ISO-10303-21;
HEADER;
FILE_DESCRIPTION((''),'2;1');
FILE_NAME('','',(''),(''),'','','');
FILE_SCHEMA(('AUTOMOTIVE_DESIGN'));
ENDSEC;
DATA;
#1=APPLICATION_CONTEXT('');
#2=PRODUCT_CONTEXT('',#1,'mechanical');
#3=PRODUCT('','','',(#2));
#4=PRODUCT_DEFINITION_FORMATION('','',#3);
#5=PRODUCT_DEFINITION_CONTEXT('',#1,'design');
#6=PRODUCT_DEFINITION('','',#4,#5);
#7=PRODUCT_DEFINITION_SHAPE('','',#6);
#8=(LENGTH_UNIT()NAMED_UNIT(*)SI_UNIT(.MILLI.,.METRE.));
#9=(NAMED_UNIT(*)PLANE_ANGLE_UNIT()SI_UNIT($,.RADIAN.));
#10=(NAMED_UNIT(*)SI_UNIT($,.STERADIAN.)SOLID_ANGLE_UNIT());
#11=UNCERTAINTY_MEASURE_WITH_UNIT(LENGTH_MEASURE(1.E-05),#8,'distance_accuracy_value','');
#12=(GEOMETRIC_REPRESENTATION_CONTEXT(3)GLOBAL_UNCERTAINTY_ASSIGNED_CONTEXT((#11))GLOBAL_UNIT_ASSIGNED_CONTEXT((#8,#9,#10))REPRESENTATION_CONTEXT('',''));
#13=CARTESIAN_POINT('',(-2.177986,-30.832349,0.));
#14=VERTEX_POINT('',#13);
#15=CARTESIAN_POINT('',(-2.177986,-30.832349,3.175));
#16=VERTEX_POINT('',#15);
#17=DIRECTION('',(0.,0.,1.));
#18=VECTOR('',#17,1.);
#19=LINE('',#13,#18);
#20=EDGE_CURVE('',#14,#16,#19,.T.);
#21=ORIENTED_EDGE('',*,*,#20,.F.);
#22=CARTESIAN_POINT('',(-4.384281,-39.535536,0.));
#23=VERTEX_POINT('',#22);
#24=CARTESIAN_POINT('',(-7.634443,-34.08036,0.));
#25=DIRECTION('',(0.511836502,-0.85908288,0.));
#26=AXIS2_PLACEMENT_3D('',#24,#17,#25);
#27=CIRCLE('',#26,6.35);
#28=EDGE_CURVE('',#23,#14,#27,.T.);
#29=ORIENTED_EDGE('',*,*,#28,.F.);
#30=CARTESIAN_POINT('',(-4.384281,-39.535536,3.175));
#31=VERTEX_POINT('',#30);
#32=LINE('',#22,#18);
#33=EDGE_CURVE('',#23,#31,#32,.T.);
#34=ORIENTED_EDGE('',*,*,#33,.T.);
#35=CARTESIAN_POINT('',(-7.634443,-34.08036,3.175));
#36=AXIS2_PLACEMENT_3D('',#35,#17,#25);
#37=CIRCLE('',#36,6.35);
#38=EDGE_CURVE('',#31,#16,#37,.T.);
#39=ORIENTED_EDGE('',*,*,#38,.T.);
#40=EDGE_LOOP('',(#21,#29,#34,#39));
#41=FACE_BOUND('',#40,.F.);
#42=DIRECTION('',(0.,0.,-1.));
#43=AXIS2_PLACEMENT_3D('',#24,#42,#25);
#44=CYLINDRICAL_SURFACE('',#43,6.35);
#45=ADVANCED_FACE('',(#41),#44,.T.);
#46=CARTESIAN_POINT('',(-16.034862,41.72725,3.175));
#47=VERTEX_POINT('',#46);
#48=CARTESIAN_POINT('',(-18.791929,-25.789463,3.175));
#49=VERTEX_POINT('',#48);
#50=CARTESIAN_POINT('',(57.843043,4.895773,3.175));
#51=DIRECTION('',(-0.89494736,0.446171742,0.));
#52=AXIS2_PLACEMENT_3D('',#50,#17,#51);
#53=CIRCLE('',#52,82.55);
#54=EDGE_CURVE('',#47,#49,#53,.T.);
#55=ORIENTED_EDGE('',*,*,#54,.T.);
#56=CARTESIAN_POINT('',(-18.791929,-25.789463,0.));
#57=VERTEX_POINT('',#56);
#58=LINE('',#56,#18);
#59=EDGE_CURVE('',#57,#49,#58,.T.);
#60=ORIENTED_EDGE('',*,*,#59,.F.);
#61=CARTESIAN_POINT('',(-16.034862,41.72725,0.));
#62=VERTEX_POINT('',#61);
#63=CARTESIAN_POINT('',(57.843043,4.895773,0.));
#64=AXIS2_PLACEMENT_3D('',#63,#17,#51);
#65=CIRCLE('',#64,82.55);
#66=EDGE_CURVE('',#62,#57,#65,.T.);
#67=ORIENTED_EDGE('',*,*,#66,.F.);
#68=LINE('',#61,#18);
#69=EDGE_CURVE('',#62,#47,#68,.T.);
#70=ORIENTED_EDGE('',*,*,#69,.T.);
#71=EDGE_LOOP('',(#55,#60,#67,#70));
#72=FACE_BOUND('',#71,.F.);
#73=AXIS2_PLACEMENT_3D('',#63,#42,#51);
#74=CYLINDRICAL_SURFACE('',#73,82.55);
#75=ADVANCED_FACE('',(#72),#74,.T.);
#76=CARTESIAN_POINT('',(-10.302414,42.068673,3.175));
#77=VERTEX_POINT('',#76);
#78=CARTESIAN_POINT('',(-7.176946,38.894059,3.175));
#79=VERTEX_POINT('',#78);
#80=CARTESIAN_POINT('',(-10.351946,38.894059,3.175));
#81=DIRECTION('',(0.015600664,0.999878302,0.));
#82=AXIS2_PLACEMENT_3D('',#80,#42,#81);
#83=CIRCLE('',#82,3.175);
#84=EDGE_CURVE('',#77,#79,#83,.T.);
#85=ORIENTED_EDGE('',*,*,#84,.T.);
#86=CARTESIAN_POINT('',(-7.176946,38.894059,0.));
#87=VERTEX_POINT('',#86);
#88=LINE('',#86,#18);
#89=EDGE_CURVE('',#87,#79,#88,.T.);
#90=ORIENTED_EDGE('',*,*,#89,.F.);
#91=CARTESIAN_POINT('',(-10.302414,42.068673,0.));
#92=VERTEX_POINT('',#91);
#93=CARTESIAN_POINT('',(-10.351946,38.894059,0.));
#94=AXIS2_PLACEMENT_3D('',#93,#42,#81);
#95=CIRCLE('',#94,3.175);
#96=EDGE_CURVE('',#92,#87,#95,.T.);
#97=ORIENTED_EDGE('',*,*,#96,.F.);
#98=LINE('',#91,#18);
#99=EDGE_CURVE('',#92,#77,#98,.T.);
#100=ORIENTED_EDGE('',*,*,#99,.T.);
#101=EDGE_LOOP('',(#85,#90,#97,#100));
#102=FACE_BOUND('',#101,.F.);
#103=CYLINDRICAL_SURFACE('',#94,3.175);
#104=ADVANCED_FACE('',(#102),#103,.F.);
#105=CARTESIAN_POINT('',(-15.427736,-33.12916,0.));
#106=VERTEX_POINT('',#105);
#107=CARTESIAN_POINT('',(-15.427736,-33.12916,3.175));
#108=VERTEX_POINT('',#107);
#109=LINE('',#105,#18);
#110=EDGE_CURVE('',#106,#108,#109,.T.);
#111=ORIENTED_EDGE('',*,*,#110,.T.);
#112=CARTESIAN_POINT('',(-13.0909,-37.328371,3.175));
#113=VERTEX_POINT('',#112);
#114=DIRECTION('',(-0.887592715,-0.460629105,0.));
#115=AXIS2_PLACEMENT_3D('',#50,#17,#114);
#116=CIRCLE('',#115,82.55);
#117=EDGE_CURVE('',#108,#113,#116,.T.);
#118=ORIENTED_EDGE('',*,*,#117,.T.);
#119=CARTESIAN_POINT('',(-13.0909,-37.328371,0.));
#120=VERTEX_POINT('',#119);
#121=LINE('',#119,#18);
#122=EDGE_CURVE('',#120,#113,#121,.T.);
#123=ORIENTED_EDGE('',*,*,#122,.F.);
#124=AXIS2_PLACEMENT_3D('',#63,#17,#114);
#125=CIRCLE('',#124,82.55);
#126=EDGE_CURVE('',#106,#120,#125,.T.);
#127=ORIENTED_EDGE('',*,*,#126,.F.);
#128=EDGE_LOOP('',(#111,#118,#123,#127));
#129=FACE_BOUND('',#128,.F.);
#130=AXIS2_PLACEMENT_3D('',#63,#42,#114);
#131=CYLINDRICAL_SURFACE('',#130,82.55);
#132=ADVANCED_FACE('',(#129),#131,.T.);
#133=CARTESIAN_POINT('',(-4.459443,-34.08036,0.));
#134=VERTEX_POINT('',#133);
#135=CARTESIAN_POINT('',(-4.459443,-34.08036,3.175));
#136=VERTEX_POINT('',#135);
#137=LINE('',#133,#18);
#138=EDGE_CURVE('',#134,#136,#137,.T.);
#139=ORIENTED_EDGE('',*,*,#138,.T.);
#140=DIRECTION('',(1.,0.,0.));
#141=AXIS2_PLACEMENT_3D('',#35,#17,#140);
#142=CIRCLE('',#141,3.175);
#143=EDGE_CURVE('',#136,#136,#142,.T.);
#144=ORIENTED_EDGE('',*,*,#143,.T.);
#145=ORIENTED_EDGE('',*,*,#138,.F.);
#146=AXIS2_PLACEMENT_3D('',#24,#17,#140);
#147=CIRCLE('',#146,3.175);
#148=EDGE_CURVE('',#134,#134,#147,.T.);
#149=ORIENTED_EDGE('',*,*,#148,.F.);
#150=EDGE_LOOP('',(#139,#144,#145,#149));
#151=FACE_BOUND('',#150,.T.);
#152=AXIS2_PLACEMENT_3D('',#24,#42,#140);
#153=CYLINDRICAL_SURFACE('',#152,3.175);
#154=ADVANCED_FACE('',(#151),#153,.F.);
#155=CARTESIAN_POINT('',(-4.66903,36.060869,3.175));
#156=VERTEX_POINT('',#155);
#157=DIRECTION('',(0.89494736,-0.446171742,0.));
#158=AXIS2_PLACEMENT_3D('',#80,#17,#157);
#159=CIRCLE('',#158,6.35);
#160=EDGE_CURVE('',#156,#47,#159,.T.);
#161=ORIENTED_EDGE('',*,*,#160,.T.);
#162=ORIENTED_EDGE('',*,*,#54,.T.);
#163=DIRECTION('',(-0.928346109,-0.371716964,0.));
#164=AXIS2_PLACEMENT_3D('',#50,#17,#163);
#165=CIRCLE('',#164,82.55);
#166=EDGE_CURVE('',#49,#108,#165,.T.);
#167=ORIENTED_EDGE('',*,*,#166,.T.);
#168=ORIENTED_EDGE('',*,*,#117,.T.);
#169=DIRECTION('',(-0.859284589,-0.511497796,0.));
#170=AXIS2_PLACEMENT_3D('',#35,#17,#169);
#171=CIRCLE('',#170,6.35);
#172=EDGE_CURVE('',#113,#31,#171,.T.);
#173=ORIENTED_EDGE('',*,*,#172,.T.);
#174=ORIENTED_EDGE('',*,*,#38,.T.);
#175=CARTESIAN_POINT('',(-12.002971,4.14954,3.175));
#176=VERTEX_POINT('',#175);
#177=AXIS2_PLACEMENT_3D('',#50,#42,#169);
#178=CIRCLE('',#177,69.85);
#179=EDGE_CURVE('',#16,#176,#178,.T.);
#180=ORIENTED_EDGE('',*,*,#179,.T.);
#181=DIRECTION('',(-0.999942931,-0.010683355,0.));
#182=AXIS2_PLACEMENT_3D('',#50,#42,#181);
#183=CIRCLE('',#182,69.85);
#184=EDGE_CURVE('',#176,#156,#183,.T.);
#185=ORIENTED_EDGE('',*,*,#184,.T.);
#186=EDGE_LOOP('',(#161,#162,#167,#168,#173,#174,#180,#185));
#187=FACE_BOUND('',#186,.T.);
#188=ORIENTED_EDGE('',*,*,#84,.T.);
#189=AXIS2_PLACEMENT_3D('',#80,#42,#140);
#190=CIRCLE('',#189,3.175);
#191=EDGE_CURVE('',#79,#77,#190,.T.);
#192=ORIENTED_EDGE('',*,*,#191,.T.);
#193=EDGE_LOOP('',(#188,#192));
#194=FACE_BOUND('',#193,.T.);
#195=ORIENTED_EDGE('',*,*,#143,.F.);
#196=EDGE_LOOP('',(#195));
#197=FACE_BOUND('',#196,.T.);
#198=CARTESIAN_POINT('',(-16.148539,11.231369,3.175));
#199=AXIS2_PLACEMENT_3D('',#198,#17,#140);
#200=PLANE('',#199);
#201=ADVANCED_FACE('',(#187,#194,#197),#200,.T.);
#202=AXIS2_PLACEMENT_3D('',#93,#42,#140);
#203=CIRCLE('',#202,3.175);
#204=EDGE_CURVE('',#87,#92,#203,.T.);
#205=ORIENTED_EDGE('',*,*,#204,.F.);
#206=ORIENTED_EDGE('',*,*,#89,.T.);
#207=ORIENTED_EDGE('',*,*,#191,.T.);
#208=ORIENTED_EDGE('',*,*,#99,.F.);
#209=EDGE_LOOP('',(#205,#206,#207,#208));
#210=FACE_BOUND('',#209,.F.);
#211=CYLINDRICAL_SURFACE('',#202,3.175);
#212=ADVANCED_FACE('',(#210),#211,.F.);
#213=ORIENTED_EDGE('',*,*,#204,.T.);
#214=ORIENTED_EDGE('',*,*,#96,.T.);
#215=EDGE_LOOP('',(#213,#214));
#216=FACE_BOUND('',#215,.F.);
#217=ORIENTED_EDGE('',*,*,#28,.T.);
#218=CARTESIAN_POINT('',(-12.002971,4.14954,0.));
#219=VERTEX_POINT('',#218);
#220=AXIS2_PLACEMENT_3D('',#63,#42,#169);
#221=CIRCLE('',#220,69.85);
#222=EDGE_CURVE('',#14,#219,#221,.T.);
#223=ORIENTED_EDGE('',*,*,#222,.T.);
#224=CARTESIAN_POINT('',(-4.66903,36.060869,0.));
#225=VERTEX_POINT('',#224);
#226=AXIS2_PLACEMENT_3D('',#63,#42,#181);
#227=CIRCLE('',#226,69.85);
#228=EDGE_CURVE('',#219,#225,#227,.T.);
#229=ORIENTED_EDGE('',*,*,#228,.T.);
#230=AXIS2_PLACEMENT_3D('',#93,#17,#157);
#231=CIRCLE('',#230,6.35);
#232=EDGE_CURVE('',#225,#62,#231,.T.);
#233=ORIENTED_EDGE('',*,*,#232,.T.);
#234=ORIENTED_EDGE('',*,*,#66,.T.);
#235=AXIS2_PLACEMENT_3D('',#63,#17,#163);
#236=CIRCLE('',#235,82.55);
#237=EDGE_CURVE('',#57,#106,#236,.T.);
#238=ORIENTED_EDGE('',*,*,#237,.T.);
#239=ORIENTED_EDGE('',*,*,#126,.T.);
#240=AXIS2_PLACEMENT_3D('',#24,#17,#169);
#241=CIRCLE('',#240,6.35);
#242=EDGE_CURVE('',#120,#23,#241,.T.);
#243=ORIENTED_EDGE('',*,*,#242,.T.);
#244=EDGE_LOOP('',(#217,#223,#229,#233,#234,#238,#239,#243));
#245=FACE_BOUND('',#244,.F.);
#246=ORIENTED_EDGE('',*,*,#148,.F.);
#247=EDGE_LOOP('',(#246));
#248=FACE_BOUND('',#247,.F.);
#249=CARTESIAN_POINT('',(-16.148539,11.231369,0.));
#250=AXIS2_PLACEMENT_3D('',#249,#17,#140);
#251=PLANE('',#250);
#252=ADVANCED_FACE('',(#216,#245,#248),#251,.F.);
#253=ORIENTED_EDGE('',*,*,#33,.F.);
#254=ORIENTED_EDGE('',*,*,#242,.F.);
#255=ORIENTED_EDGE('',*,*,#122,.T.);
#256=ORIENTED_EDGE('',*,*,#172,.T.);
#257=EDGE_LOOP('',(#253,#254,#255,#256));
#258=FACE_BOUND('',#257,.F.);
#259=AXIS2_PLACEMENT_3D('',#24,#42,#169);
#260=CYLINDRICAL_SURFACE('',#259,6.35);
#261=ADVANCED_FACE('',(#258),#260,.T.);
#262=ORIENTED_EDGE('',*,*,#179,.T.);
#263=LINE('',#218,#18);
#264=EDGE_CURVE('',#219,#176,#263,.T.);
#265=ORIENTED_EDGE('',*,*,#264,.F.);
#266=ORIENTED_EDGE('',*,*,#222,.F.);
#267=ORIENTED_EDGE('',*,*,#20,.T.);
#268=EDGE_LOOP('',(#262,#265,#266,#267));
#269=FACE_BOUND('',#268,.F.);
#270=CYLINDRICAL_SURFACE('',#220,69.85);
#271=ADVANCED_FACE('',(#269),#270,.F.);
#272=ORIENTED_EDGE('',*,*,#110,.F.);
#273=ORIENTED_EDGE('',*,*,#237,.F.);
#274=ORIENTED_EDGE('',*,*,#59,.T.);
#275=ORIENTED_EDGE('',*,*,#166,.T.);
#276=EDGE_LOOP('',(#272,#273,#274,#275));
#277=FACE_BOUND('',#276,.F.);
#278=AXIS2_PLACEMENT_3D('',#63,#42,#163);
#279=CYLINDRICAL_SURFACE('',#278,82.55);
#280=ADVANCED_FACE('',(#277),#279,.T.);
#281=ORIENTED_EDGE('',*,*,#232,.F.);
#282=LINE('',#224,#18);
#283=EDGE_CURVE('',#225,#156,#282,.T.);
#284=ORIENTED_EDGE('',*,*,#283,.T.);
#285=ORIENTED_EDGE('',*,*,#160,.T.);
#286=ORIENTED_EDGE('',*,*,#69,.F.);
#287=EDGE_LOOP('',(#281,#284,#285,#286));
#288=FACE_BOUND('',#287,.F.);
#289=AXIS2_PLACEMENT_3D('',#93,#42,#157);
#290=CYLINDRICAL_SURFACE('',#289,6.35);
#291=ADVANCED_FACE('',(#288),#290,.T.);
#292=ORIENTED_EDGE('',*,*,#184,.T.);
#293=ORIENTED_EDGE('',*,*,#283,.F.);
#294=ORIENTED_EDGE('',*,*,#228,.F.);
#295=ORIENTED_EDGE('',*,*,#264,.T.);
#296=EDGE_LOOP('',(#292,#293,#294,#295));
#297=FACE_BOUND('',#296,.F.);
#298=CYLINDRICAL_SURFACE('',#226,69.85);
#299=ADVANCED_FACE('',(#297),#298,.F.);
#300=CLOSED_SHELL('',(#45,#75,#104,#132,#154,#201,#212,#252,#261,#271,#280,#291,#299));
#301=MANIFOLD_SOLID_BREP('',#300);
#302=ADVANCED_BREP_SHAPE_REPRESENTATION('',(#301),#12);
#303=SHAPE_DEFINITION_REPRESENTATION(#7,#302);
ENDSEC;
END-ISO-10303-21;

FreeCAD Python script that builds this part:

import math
import FreeCAD as App
import Part
import Sketcher

V = App.Vector
Q = App.Units.Quantity

doc = App.newDocument("Part")
body = doc.addObject("PartDesign::Body", "Body")

# Sketch on XY plane
sketch1 = body.newObject("Sketcher::SketchObject", "Sketch")
sketch1.AttachmentSupport = (doc.getObject("XY_Plane"), [""])
sketch1.MapMode = "FlatFace"
sketch1.addGeometry([
    Part.ArcOfCircle(Part.Circle(V(-10.351946, 38.894059, 0), V(0, 0, 1), 6.35), math.radians(-26.498331), math.radians(153.501669)),  # 0
    Part.ArcOfCircle(Part.Circle(V(57.843043, 4.895773, 0), V(0, 0, 1), 82.55), math.radians(153.501669), math.radians(201.821546)),  # 1
    Part.ArcOfCircle(Part.Circle(V(57.843043, 4.895773, 0), V(0, 0, 1), 82.55), math.radians(-158.178454), math.radians(-152.57229)),  # 2
    Part.ArcOfCircle(Part.Circle(V(57.843043, 4.895773, 0), V(0, 0, 1), 82.55), math.radians(-152.57229), math.radians(-149.236351)),  # 3
    Part.ArcOfCircle(Part.Circle(V(-7.634443, -34.08036, 0), V(0, 0, 1), 6.35), math.radians(-149.236351), math.radians(-59.213764)),  # 4
    Part.ArcOfCircle(Part.Circle(V(-7.634443, -34.08036, 0), V(0, 0, 1), 6.35), math.radians(-59.213764), math.radians(30.763649)),  # 5
    Part.ArcOfCircle(Part.Circle(V(57.843043, 4.895773, 0), V(0, 0, 1), 69.85), math.radians(-179.387877), math.radians(-149.236351)),  # 6
    Part.ArcOfCircle(Part.Circle(V(57.843043, 4.895773, 0), V(0, 0, 1), 69.85), math.radians(153.501669), math.radians(180.612123)),  # 7
    Part.Circle(V(-7.634443, -34.08036, 0), V(0, 0, 1), 3.175),  # 8
    Part.ArcOfCircle(Part.Circle(V(-10.351946, 38.894059, 0), V(0, 0, 1), 3.175), math.radians(0), math.radians(89.106112)),  # 9
    Part.ArcOfCircle(Part.Circle(V(-10.351946, 38.894059, 0), V(0, 0, 1), 3.175), math.radians(89.106112), math.radians(360)),  # 10
], False)
sketch1.addConstraint([
    Sketcher.Constraint("Tangent", 0, 2, 1, 1),
    Sketcher.Constraint("Tangent", 1, 2, 2, 1),
    Sketcher.Constraint("Tangent", 2, 2, 3, 1),
    Sketcher.Constraint("Tangent", 3, 2, 4, 1),
    Sketcher.Constraint("Tangent", 4, 2, 5, 1),
    Sketcher.Constraint("Tangent", 5, 2, 6, 2),
    Sketcher.Constraint("Tangent", 6, 1, 7, 2),
    Sketcher.Constraint("Tangent", 7, 1, 0, 1),
    Sketcher.Constraint("Tangent", 9, 1, 10, 2),
    Sketcher.Constraint("Coincident", 10, 1, 9, 2),
    Sketcher.Constraint("Coincident", 3, 3, 1, 3),
    Sketcher.Constraint("Coincident", 6, 3, 1, 3),
    Sketcher.Constraint("Coincident", 8, 3, 4, 3),
    Sketcher.Constraint("Coincident", 9, 3, 0, 3),
    Sketcher.Constraint("Equal", 0, 4),
    Sketcher.Constraint("Equal", 4, 5),
    Sketcher.Constraint("Equal", 8, 9),
    Sketcher.Constraint("Horizontal", 10, 3, 9, 1),
    Sketcher.Constraint("Diameter", 8, Q("0.25 in")),
    Sketcher.Constraint("Radius", 0, Q("0.25 in")),
    Sketcher.Constraint("Radius", 1, Q("3.25 in")),
    Sketcher.Constraint("DistanceX", 3, 2, -1, 1, Q("13.0909 mm")),
    Sketcher.Constraint("DistanceY", 4, 3, 2, 2, Q("0.951199 mm")),
    Sketcher.Constraint("DistanceY", -1, 1, 0, 3, Q("38.894059 mm")),
    Sketcher.Constraint("DistanceY", 4, 3, -1, 1, Q("34.08036 mm")),
    Sketcher.Constraint("DistanceX", 0, 2, -1, 1, Q("16.034862 mm")),
    Sketcher.Constraint("DistanceX", 1, 2, -1, 1, Q("18.791929 mm")),
    Sketcher.Constraint("DistanceX", 4, 2, -1, 1, Q("4.384281 mm")),
    Sketcher.Constraint("DistanceX", 6, 1, -1, 1, Q("12.002971 mm")),
    Sketcher.Constraint("DistanceX", 10, 1, -1, 1, Q("10.302414 mm")),
])
pad1 = body.newObject("PartDesign::Pad", "Pad")
pad1.Profile = sketch1
pad1.Length = Q("0.125 in")

doc.recompute()
